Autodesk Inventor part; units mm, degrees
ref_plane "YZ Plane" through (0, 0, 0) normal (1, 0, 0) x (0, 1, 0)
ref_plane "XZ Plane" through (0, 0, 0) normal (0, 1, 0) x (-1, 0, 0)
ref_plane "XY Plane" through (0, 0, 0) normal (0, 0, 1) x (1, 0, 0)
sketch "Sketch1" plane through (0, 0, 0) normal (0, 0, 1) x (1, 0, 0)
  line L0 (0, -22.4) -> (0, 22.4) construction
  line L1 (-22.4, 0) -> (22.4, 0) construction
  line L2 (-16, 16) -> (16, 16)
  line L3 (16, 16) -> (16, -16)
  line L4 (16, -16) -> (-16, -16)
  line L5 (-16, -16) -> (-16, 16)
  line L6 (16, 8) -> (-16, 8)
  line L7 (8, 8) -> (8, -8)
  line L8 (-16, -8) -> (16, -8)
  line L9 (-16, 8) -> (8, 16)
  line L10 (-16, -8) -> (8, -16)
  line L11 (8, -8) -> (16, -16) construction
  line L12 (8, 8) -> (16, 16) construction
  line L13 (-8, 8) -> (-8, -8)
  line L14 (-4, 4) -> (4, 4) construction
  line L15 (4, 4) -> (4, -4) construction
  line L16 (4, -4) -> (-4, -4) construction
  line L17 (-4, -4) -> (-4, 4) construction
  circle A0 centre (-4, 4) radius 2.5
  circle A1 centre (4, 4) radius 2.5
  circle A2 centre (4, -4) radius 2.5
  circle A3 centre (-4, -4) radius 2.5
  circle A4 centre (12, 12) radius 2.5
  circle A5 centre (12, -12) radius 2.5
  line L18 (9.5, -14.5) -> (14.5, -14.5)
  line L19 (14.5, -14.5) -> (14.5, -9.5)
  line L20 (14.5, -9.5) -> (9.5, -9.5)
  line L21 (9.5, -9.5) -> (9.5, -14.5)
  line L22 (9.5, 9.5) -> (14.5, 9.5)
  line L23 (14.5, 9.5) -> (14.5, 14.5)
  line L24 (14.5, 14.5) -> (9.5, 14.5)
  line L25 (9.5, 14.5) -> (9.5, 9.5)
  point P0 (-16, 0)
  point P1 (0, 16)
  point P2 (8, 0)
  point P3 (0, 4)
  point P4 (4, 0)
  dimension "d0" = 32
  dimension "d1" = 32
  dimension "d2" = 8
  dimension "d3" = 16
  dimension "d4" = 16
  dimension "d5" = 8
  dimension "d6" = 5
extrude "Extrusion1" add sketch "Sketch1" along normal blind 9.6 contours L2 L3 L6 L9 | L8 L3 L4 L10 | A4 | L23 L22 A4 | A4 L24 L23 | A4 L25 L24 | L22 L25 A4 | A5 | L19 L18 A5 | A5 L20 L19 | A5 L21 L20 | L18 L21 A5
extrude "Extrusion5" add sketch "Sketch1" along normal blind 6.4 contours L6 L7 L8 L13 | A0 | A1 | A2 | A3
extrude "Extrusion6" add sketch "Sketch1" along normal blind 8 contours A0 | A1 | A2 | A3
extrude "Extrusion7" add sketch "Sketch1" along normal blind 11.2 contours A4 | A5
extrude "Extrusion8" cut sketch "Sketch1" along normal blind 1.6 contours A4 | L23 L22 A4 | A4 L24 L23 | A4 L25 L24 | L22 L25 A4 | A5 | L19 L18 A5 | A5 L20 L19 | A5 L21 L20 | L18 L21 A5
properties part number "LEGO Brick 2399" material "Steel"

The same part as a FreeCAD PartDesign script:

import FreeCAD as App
import Part
import Sketcher

V = App.Vector

doc = App.newDocument("Part")
body = doc.addObject("PartDesign::Body", "Body")
body.AllowCompound = True

sketch1 = doc.addObject("Sketcher::SketchObject", "Sketch")
body.addObject(sketch1)
sketch1.AttachmentSupport = (doc.XY_Plane, [""])
sketch1.MapMode = "FlatFace"
sketch1.addGeometry([
    Part.LineSegment(V(16, 16, 0), V(8, 16, 0)),
    Part.LineSegment(V(8, 16, 0), V(-16, 8, 0)),
    Part.LineSegment(V(-16, 8, 0), V(16, 8, 0)),
    Part.LineSegment(V(16, 8, 0), V(16, 16, 0)),
    Part.LineSegment(V(-16, -8, 0), V(8, -16, 0)),
    Part.LineSegment(V(8, -16, 0), V(16, -16, 0)),
    Part.LineSegment(V(16, -16, 0), V(16, -8, 0)),
    Part.LineSegment(V(16, -8, 0), V(-16, -8, 0)),
], False)
sketch1.addConstraint([
    Sketcher.Constraint("Coincident", 0, 2, 1, 1),
    Sketcher.Constraint("Coincident", 1, 2, 2, 1),
    Sketcher.Constraint("Coincident", 2, 2, 3, 1),
    Sketcher.Constraint("Coincident", 3, 2, 0, 1),
    Sketcher.Constraint("Coincident", 4, 2, 5, 1),
    Sketcher.Constraint("Coincident", 5, 2, 6, 1),
    Sketcher.Constraint("Coincident", 6, 2, 7, 1),
    Sketcher.Constraint("Coincident", 7, 2, 4, 1),
    Sketcher.Constraint("Horizontal", 0),
    Sketcher.Constraint("Horizontal", 2),
    Sketcher.Constraint("Vertical", 3),
    Sketcher.Constraint("Horizontal", 5),
    Sketcher.Constraint("Vertical", 6),
    Sketcher.Constraint("Horizontal", 7),
    Sketcher.Constraint("Symmetric", 1, 2, 6, 2, -1, 1),
    Sketcher.Constraint("Symmetric", 0, 2, 4, 2, -1),
    Sketcher.Constraint("Vertical", 3, 2, 5, 2),
    Sketcher.Constraint("Vertical", 1, 2, 7, 2),
    Sketcher.Constraint("Equal", 5, 3),
    Sketcher.Constraint("DistanceX", 0, 2, 0, 1, 8.0),
    Sketcher.Constraint("DistanceX", 2, 1, 2, 2, 32.0),
    Sketcher.Constraint("DistanceY", -1, 1, 0, 2, 16.0),
])
pad1 = doc.addObject("PartDesign::Pad", "Pad")
body.addObject(pad1)
pad1.Profile = sketch1
pad1.Length = 9.6

sketch2 = doc.addObject("Sketcher::SketchObject", "Sketch001")
body.addObject(sketch2)
sketch2.AttachmentSupport = (doc.XY_Plane, [""])
sketch2.MapMode = "FlatFace"
sketch2.addGeometry([
    Part.LineSegment(V(8, 8, 0), V(-8, 8, 0)),
    Part.LineSegment(V(-8, 8, 0), V(-8, -8, 0)),
    Part.LineSegment(V(-8, -8, 0), V(8, -8, 0)),
    Part.LineSegment(V(8, -8, 0), V(8, 8, 0)),
], False)
sketch2.addConstraint([
    Sketcher.Constraint("Coincident", 0, 2, 1, 1),
    Sketcher.Constraint("Coincident", 1, 2, 2, 1),
    Sketcher.Constraint("Coincident", 2, 2, 3, 1),
    Sketcher.Constraint("Coincident", 3, 2, 0, 1),
    Sketcher.Constraint("Horizontal", 0),
    Sketcher.Constraint("Vertical", 1),
    Sketcher.Constraint("Horizontal", 2),
    Sketcher.Constraint("Vertical", 3),
    Sketcher.Constraint("Symmetric", 0, 2, 2, 2, -1, 1),
    Sketcher.Constraint("Equal", 2, 1),
    Sketcher.Constraint("DistanceX", 0, 2, 0, 1, 16.0),
])
pad2 = doc.addObject("PartDesign::Pad", "Pad001")
body.addObject(pad2)
pad2.Profile = sketch2
pad2.Length = 6.4

sketch3 = doc.addObject("Sketcher::SketchObject", "Sketch002")
body.addObject(sketch3)
sketch3.AttachmentSupport = (doc.XY_Plane, [""])
sketch3.MapMode = "FlatFace"
sketch3.addGeometry([
    Part.Circle(V(-4, 4, 0), V(0, 0, 1), 2.5),
    Part.Circle(V(4, 4, 0), V(0, 0, 1), 2.5),
    Part.Circle(V(4, -4, 0), V(0, 0, 1), 2.5),
    Part.Circle(V(-4, -4, 0), V(0, 0, 1), 2.5),
], False)
sketch3.addConstraint([
    Sketcher.Constraint("Equal", 0, 1),
    Sketcher.Constraint("Equal", 1, 2),
    Sketcher.Constraint("Equal", 2, 3),
    Sketcher.Constraint("Symmetric", 0, 3, 2, 3, -1, 1),
    Sketcher.Constraint("Symmetric", 1, 3, 3, 3, -1, 1),
    Sketcher.Constraint("Symmetric", 0, 3, 1, 3, -2),
    Sketcher.Constraint("Diameter", 0, 5.0),
    Sketcher.Constraint("DistanceX", 0, 3, 1, 3, 8.0),
    Sketcher.Constraint("DistanceY", 2, 3, 1, 3, 8.0),
])
pad3 = doc.addObject("PartDesign::Pad", "Pad002")
body.addObject(pad3)
pad3.Profile = sketch3
pad3.Length = 8

sketch4 = doc.addObject("Sketcher::SketchObject", "Sketch003")
body.addObject(sketch4)
sketch4.AttachmentSupport = (doc.XY_Plane, [""])
sketch4.MapMode = "FlatFace"
sketch4.addGeometry([
    Part.Circle(V(12, 12, 0), V(0, 0, 1), 2.5),
    Part.Circle(V(12, -12, 0), V(0, 0, 1), 2.5),
], False)
sketch4.addConstraint([
    Sketcher.Constraint("Equal", 0, 1),
    Sketcher.Constraint("Symmetric", 0, 3, 1, 3, -1),
    Sketcher.Constraint("Diameter", 0, 5.0),
    Sketcher.Constraint("DistanceX", -1, 1, 0, 3, 12.0),
    Sketcher.Constraint("DistanceY", -1, 1, 0, 3, 12.0),
])
pad4 = doc.addObject("PartDesign::Pad", "Pad003")
body.addObject(pad4)
pad4.Profile = sketch4
pad4.Length = 11.2

sketch5 = doc.addObject("Sketcher::SketchObject", "Sketch004")
body.addObject(sketch5)
sketch5.AttachmentSupport = (doc.XY_Plane, [""])
sketch5.MapMode = "FlatFace"
sketch5.addGeometry([
    Part.LineSegment(V(14, 10, 0), V(14, 14, 0)),
    Part.LineSegment(V(14, 14, 0), V(10, 14, 0)),
    Part.LineSegment(V(10, 14, 0), V(10, 10, 0)),
    Part.LineSegment(V(10, 10, 0), V(14, 10, 0)),
    Part.LineSegment(V(14, -14, 0), V(14, -10, 0)),
    Part.LineSegment(V(14, -10, 0), V(10, -10, 0)),
    Part.LineSegment(V(10, -10, 0), V(10, -14, 0)),
    Part.LineSegment(V(10, -14, 0), V(14, -14, 0)),
], False)
sketch5.addConstraint([
    Sketcher.Constraint("Coincident", 0, 2, 1, 1),
    Sketcher.Constraint("Coincident", 1, 2, 2, 1),
    Sketcher.Constraint("Coincident", 2, 2, 3, 1),
    Sketcher.Constraint("Coincident", 3, 2, 0, 1),
    Sketcher.Constraint("Coincident", 4, 2, 5, 1),
    Sketcher.Constraint("Coincident", 5, 2, 6, 1),
    Sketcher.Constraint("Coincident", 6, 2, 7, 1),
    Sketcher.Constraint("Coincident", 7, 2, 4, 1),
    Sketcher.Constraint("Vertical", 0),
    Sketcher.Constraint("Horizontal", 1),
    Sketcher.Constraint("Vertical", 2),
    Sketcher.Constraint("Horizontal", 3),
    Sketcher.Constraint("Vertical", 4),
    Sketcher.Constraint("Horizontal", 5),
    Sketcher.Constraint("Vertical", 6),
    Sketcher.Constraint("Horizontal", 7),
    Sketcher.Constraint("Symmetric", 3, 2, 4, 2, -1),
    Sketcher.Constraint("Symmetric", 1, 2, 6, 2, -1),
    Sketcher.Constraint("Equal", 7, 0),
    Sketcher.Constraint("DistanceX", 1, 2, 1, 1, 5.0),
    Sketcher.Constraint("DistanceY", 4, 2, 3, 2, 19.0),
    Sketcher.Constraint("DistanceX", -1, 1, 0, 2, 14.5),
])
pocket1 = doc.addObject("PartDesign::Pocket", "Pocket")
body.addObject(pocket1)
pocket1.Profile = sketch5
pocket1.Length = 1.6
pocket1.Reversed = True

doc.recompute()
